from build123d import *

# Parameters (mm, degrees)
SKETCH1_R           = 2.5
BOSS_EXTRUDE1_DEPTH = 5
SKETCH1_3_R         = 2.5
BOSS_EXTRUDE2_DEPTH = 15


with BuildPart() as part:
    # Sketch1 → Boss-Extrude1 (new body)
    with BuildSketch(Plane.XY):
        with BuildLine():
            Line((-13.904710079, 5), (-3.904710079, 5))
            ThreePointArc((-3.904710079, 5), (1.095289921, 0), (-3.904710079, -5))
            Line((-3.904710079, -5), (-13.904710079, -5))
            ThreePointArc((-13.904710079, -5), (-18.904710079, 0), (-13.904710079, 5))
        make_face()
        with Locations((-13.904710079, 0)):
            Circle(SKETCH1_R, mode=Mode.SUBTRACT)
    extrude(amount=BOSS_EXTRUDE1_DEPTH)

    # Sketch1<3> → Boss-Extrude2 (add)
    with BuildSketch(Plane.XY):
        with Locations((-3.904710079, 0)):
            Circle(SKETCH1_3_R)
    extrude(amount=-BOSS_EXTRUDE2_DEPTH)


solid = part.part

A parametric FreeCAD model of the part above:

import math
import FreeCAD as App
import Part
import Sketcher
from FreeCAD import Vector
Q = App.Units.Quantity

doc = App.newDocument("Part")
body = doc.addObject("PartDesign::Body", "Body")

# Sketch on XY plane
sketch1 = body.newObject("Sketcher::SketchObject", "Sketch")
sketch1.AttachmentSupport = (doc.getObject("XY_Plane"), [""])
sketch1.MapMode = "FlatFace"
sketch1.addGeometry([
    Part.LineSegment(Vector(-3.9, 5, 0), Vector(-13.9, 5, 0)),  # 0
    Part.ArcOfCircle(Part.Circle(Vector(-13.9, 0, 0), Vector(0, 0, 1), 5), math.radians(90), math.radians(270)),  # 1
    Part.LineSegment(Vector(-13.9, -5, 0), Vector(-3.9, -5, 0)),  # 2
    Part.ArcOfCircle(Part.Circle(Vector(-3.9, 0, 0), Vector(0, 0, 1), 5), math.radians(-90), math.radians(90)),  # 3
    Part.Circle(Vector(-13.9, 0, 0), Vector(0, 0, 1), 2.5),  # 4
], False)
sketch1.addConstraint([
    Sketcher.Constraint("Tangent", 0, 2, 1, 1),
    Sketcher.Constraint("Tangent", 1, 2, 2, 1),
    Sketcher.Constraint("Tangent", 2, 2, 3, 1),
    Sketcher.Constraint("Tangent", 3, 2, 0, 1),
    Sketcher.Constraint("Horizontal", 0),
    Sketcher.Constraint("Horizontal", 2),
    Sketcher.Constraint("Coincident", 4, 3, 1, 3),
    Sketcher.Constraint("PointOnObject", 1, 3, -1),
    Sketcher.Constraint("Diameter", 4, Q("5 mm")),
    Sketcher.Constraint("Radius", 1, Q("5 mm")),
    Sketcher.Constraint("DistanceX", 0, 2, 0, 1, Q("10 mm")),
    Sketcher.Constraint("DistanceX", 1, 3, -1, 1, Q("13.90471 mm")),
])
pad1 = body.newObject("PartDesign::Pad", "Pad")
pad1.Profile = sketch1
pad1.Length = 5

# Sketch on XY plane
sketch2 = body.newObject("Sketcher::SketchObject", "Sketch001")
sketch2.AttachmentSupport = (doc.getObject("XY_Plane"), [""])
sketch2.MapMode = "FlatFace"
sketch2.addGeometry(Part.Circle(Vector(-3.9, 0, 0), Vector(0, 0, 1), 2.5), False)
sketch2.addConstraint([
    Sketcher.Constraint("PointOnObject", 0, 3, -1),
    Sketcher.Constraint("Diameter", 0, Q("5 mm")),
    Sketcher.Constraint("DistanceX", 0, 3, -1, 1, Q("3.90471 mm")),
])
pad2 = body.newObject("PartDesign::Pad", "Pad001")
pad2.Profile = sketch2
pad2.Length = 15
pad2.Reversed = True

doc.recompute()
